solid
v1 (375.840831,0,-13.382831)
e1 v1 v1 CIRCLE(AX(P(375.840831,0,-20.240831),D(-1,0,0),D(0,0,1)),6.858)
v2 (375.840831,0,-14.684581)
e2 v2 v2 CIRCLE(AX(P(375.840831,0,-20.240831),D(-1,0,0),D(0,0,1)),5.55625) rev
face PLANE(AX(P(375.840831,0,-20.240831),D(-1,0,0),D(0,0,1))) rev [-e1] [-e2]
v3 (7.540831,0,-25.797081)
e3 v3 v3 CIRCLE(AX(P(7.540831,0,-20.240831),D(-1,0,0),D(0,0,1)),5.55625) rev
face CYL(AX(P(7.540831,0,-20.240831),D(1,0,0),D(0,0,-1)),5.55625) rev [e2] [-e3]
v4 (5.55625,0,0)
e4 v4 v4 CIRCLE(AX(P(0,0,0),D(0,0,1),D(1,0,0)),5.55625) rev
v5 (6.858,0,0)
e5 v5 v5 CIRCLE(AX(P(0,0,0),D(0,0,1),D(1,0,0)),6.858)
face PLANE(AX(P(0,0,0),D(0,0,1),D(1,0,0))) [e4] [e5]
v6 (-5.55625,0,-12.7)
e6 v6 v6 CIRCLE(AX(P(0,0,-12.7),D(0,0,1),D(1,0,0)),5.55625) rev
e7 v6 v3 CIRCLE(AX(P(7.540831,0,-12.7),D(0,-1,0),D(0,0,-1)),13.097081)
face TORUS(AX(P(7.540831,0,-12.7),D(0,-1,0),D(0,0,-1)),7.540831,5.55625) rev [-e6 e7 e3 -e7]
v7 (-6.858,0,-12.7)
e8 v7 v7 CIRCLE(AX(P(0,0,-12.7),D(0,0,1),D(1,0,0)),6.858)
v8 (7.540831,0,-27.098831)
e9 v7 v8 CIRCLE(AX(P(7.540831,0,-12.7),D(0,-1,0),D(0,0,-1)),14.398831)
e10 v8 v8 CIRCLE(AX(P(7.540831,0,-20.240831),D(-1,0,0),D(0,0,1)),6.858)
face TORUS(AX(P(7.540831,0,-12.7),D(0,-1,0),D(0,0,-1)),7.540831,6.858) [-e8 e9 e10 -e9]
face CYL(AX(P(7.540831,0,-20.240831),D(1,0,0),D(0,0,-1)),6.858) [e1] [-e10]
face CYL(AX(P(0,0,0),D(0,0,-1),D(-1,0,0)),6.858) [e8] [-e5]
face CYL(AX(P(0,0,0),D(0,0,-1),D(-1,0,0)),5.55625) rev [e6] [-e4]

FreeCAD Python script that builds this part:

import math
import FreeCAD as App
import Part
import Sketcher

V = App.Vector
Q = App.Units.Quantity

doc = App.newDocument("Part")
body = doc.addObject("PartDesign::Body", "Body")

sketch1 = body.newObject("Sketcher::SketchObject", "Sketch")
sketch1.AttachmentSupport = (doc.getObject("XY_Plane"), [""])
sketch1.MapMode = "FlatFace"
sketch1.addGeometry([
    Part.Circle(V(0, 0, 0), V(0, 0, 1), 7),
    Part.Circle(V(0, 0, 0), V(0, 0, 1), 6),
], False)
sketch1.addConstraint([
    Sketcher.Constraint("Coincident", 0, 3, -1, 1),
    Sketcher.Constraint("Coincident", 1, 3, -1, 1),
    Sketcher.Constraint("Diameter", 0, Q("0.54 in")),
    Sketcher.Constraint("Diameter", 1, Q("0.4375 in")),
])

sketch2 = body.newObject("Sketcher::SketchObject", "Sketch001")
sketch2.AttachmentSupport = (doc.getObject("XZ_Plane"), [""])
sketch2.MapMode = "FlatFace"
sketch2.addGeometry([
    Part.LineSegment(V(0, 0, 0), V(0, -13, 0)),
    Part.ArcOfCircle(Part.Circle(V(8, -13, 0), V(0, 0, 1), 8), math.radians(180), math.radians(270)),
    Part.LineSegment(V(8, -20, 0), V(376, -20, 0)),
], False)
sketch2.addConstraint([
    Sketcher.Constraint("Tangent", 0, 2, 1, 1),
    Sketcher.Constraint("Tangent", 1, 2, 2, 1),
    Sketcher.Constraint("Vertical", 0),
    Sketcher.Constraint("Horizontal", 2),
    Sketcher.Constraint("Coincident", 0, 1, -1, 1),
    Sketcher.Constraint("DistanceX", 2, 1, 2, 2, Q("14.5 in")),
    Sketcher.Constraint("DistanceY", 0, 2, 0, 1, Q("0.5 in")),
    Sketcher.Constraint("Radius", 1, Q("7.540831 mm")),
])
doc.recompute()

additivepipe = body.newObject("PartDesign::AdditivePipe", "AdditivePipe")
additivepipe.Profile = sketch1
additivepipe.Spine = (sketch2, ["Edge1", "Edge2", "Edge3"])

doc.recompute()
